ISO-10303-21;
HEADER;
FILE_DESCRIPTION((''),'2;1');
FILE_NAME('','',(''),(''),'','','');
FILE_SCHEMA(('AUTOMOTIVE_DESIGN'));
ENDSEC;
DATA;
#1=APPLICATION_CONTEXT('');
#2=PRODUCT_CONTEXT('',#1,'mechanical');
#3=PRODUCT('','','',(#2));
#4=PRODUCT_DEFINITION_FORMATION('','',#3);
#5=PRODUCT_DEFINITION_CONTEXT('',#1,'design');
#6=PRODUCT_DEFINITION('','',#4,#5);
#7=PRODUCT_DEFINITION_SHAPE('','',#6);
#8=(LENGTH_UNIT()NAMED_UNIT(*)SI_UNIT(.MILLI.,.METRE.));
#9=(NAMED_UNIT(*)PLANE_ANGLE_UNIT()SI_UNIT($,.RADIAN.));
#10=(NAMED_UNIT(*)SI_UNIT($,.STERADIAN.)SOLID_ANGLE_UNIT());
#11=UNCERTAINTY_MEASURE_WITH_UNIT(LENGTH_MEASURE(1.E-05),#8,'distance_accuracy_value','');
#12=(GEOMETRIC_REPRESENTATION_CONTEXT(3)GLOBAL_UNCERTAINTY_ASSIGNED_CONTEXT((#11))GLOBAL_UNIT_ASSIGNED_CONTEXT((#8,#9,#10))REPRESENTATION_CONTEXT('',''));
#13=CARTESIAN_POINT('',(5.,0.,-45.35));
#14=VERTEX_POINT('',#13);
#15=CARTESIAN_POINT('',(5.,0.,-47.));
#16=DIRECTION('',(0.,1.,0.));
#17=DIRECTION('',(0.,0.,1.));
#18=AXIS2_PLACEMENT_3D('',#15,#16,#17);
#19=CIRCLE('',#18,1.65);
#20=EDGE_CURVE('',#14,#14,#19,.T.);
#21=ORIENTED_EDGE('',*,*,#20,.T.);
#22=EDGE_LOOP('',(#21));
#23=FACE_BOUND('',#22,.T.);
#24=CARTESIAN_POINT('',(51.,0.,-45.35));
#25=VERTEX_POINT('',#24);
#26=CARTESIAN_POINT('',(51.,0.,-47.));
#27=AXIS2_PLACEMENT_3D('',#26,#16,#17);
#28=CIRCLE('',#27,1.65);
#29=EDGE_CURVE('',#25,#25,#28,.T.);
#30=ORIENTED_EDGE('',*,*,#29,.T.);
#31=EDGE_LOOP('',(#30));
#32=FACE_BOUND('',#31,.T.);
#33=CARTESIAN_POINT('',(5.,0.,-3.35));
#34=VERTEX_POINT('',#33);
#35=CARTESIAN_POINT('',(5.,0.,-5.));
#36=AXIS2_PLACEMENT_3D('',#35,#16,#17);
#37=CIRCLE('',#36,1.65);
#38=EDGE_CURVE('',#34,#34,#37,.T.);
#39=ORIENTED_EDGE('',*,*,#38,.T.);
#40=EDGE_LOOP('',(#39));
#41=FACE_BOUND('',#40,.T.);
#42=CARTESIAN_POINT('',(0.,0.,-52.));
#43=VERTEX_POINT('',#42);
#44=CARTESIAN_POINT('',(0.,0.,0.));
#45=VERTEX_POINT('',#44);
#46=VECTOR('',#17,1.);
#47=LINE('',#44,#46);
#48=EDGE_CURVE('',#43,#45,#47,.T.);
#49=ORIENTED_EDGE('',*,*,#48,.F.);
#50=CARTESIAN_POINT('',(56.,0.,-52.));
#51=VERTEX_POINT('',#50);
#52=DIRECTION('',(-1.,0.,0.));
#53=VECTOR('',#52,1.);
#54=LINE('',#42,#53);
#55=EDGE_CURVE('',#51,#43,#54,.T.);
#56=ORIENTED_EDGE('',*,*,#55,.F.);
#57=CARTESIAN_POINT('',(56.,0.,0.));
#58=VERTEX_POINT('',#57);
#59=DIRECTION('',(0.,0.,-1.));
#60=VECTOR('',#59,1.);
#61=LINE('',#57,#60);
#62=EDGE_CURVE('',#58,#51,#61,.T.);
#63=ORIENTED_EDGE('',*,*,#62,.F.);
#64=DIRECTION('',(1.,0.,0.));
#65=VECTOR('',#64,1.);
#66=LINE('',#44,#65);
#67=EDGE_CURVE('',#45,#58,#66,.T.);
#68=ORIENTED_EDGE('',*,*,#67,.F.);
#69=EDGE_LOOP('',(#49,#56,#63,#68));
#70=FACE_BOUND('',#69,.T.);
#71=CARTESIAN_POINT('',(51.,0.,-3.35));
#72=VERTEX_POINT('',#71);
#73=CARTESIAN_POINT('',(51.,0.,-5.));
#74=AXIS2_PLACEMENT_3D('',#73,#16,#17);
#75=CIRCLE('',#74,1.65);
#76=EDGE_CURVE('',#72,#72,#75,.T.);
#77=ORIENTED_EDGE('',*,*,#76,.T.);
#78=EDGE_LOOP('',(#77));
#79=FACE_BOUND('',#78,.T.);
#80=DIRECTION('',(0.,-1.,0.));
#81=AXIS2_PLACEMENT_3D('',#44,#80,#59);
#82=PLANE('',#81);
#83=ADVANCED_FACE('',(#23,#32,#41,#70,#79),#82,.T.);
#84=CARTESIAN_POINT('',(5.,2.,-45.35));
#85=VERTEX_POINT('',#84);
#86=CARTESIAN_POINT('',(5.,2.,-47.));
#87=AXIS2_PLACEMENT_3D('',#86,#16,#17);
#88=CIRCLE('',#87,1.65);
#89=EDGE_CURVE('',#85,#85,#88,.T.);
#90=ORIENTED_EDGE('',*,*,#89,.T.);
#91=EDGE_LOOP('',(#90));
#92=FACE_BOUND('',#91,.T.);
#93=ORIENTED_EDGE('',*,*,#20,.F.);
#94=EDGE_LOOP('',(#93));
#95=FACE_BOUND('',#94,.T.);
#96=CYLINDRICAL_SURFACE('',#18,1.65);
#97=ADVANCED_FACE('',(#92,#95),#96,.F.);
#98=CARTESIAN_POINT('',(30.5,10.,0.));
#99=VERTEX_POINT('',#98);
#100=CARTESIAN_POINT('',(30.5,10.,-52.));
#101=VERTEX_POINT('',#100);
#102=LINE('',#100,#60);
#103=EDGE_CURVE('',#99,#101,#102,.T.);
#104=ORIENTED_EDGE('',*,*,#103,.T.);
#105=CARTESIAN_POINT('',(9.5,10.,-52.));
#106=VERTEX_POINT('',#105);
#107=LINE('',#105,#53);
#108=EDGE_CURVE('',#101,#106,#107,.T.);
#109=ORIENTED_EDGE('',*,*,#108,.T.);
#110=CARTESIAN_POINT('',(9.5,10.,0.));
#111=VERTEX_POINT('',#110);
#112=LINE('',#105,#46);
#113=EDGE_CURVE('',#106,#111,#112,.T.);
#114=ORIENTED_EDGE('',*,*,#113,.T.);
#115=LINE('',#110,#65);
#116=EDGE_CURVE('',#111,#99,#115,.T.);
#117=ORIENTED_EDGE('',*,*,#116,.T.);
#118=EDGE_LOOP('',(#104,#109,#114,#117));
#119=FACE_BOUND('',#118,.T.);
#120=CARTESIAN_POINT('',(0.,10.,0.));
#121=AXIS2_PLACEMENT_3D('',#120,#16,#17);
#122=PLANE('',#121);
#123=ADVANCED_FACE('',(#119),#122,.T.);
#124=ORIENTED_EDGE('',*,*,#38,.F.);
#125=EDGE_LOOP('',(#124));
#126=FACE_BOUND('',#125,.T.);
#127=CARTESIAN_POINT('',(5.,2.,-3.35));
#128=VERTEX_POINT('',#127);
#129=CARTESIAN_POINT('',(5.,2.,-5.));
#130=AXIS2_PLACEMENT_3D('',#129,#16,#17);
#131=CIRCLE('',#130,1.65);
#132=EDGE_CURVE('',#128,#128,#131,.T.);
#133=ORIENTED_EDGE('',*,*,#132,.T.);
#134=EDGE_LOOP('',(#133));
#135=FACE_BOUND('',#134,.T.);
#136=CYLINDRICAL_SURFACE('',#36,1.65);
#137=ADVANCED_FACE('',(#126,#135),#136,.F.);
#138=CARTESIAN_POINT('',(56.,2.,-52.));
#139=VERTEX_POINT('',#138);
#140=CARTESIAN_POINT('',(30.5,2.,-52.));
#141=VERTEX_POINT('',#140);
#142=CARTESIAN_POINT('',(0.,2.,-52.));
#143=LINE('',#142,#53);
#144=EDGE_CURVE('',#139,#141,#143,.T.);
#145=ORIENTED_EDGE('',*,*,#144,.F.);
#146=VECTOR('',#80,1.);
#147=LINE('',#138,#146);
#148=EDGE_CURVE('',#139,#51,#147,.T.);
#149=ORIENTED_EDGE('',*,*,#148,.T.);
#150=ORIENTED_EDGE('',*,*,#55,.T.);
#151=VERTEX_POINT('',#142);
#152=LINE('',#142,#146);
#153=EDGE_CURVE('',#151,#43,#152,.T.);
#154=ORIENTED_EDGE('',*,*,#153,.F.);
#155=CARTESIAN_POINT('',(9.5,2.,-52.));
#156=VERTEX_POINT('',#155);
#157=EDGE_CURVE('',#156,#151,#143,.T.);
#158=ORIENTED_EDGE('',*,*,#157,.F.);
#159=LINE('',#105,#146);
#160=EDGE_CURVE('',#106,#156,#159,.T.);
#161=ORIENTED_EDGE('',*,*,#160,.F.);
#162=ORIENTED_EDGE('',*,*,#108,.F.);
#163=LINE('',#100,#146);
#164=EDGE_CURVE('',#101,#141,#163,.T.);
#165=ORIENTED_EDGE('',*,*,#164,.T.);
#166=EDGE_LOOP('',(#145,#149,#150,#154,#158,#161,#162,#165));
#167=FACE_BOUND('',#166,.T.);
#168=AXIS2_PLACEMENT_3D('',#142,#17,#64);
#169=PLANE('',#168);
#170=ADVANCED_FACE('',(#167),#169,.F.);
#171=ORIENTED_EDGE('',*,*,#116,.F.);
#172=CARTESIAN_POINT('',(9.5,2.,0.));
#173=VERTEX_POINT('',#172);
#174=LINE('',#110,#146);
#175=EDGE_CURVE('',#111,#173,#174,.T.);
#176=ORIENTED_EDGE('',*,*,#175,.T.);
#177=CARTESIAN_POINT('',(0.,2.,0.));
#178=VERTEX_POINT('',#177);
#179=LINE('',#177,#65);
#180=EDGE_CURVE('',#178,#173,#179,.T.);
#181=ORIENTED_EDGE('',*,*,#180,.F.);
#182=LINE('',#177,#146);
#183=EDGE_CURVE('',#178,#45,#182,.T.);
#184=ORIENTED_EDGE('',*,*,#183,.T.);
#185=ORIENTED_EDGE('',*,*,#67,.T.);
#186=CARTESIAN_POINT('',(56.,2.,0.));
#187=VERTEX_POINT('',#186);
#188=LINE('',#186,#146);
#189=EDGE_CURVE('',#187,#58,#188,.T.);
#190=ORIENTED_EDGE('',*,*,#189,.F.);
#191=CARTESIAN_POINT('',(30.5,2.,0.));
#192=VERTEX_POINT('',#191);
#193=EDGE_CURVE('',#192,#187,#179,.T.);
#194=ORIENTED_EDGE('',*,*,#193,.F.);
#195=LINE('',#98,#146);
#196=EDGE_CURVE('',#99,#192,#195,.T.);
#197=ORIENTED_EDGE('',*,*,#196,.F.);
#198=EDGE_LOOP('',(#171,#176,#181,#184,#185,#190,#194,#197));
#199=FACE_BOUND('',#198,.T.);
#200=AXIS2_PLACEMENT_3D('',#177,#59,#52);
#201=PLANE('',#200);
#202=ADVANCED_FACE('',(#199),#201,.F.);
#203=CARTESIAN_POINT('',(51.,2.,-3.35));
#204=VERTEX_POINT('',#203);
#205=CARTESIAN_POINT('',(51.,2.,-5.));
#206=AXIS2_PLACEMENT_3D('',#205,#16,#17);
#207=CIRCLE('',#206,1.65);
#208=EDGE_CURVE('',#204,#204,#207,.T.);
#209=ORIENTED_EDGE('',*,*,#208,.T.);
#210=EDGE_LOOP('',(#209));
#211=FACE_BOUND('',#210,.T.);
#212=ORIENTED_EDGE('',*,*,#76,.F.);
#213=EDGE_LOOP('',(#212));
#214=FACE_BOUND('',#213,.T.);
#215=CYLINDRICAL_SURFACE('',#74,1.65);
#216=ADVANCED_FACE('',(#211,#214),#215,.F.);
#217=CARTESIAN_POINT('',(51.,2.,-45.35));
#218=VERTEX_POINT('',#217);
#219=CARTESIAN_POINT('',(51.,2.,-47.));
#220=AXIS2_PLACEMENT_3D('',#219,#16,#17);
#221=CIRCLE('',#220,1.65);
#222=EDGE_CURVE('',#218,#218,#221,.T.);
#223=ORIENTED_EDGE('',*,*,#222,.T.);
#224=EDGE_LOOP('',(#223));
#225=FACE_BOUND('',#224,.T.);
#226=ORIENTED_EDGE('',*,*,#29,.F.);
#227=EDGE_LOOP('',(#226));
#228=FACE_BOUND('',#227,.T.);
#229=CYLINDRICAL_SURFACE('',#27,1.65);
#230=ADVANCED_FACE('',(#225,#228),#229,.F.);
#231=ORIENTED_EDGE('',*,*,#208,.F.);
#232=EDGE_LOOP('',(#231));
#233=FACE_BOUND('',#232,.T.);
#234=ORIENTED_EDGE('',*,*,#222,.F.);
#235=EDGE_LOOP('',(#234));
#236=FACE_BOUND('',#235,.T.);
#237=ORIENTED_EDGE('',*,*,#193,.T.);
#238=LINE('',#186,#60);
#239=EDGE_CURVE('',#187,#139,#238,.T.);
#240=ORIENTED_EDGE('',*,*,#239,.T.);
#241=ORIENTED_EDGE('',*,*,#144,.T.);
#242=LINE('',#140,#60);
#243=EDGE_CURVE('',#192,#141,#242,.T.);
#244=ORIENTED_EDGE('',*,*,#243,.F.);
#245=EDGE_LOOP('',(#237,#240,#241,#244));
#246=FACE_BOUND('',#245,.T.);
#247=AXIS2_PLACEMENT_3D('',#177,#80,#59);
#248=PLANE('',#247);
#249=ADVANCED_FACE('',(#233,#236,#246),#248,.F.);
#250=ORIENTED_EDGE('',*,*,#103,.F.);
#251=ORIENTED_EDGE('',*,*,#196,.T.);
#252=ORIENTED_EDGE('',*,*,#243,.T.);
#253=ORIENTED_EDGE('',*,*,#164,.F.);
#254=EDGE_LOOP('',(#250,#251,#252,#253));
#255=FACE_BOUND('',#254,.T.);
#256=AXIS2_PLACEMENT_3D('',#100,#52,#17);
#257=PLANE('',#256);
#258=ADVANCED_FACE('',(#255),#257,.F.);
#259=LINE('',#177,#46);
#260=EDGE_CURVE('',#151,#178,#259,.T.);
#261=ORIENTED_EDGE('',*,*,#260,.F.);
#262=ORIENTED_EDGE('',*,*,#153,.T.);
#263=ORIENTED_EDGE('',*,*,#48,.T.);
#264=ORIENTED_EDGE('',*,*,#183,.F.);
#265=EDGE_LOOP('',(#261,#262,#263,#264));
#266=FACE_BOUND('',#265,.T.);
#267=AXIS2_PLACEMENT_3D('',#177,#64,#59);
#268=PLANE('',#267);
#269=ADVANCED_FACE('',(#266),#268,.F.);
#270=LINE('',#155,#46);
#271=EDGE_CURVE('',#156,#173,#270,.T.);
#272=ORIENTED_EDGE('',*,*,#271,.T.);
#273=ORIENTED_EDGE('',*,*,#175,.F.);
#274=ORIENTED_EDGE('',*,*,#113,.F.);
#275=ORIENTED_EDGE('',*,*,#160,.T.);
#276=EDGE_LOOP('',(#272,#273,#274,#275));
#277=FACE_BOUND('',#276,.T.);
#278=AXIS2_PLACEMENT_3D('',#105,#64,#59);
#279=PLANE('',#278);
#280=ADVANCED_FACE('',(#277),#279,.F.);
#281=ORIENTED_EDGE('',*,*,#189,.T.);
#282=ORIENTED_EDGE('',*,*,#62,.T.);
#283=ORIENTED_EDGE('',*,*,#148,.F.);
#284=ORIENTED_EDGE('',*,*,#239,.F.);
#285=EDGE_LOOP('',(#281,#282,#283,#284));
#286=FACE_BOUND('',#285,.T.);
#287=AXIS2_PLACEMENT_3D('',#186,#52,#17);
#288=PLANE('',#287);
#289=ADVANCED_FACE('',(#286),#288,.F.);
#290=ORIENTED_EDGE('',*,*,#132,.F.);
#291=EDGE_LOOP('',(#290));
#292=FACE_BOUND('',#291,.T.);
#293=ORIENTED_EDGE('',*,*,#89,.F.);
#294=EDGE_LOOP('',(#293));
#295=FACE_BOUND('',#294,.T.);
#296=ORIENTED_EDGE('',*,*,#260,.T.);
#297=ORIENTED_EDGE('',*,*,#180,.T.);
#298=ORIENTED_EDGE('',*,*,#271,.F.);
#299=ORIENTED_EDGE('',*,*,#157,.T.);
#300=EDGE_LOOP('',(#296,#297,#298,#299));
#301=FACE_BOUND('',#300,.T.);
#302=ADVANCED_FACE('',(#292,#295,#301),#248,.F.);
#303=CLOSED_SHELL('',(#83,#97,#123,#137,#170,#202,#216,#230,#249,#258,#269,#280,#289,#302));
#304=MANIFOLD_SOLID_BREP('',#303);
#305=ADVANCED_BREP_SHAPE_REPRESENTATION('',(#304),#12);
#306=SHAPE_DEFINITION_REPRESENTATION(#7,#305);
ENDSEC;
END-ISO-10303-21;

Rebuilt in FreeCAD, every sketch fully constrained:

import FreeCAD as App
import Part
import Sketcher
Q = App.Units.Quantity

doc = App.newDocument("Part")
body = doc.addObject("PartDesign::Body", "Body")

sketch1 = doc.addObject("Sketcher::SketchObject", "Sketch")
body.addObject(sketch1)
sketch1.AttachmentSupport = (doc.XZ_Plane, [""])
sketch1.MapMode = "FlatFace"
sketch1.addGeometry([
    Part.LineSegment(App.Vector(0, -52, 0), App.Vector(0, 0, 0)),
    Part.LineSegment(App.Vector(0, 0, 0), App.Vector(56, 0, 0)),
    Part.LineSegment(App.Vector(56, 0, 0), App.Vector(56, -52, 0)),
    Part.LineSegment(App.Vector(56, -52, 0), App.Vector(0, -52, 0)),
], False)
sketch1.addConstraint([
    Sketcher.Constraint("Coincident", 0, 2, 1, 1),
    Sketcher.Constraint("Coincident", 1, 2, 2, 1),
    Sketcher.Constraint("Coincident", 2, 2, 3, 1),
    Sketcher.Constraint("Coincident", 3, 2, 0, 1),
    Sketcher.Constraint("Vertical", 0),
    Sketcher.Constraint("Horizontal", 1),
    Sketcher.Constraint("Vertical", 2),
    Sketcher.Constraint("Horizontal", 3),
    Sketcher.Constraint("Coincident", 0, 2, -1, 1),
    Sketcher.Constraint("DistanceX", 1, 1, 1, 2, Q("56 mm")),
    Sketcher.Constraint("DistanceY", 0, 1, 0, 2, Q("52 mm")),
])
pad1 = doc.addObject("PartDesign::Pad", "Pad")
body.addObject(pad1)
pad1.Profile = sketch1
pad1.Length = 2
pad1.Reversed = True

sketch2 = doc.addObject("Sketcher::SketchObject", "Sketch001")
body.addObject(sketch2)
sketch2.AttachmentSupport = (doc.XZ_Plane, [""])
sketch2.MapMode = "FlatFace"
sketch2.AttachmentOffset = App.Placement(App.Vector(0, 0, -2), App.Rotation())
sketch2.addGeometry([
    Part.Circle(App.Vector(5, -47, 0), App.Vector(0, 0, 1), 1.65),
    Part.Circle(App.Vector(51, -47, 0), App.Vector(0, 0, 1), 1.65),
    Part.Circle(App.Vector(5, -5, 0), App.Vector(0, 0, 1), 1.65),
    Part.Circle(App.Vector(51, -5, 0), App.Vector(0, 0, 1), 1.65),
], False)
sketch2.addConstraint([
    Sketcher.Constraint("Equal", 0, 1),
    Sketcher.Constraint("Equal", 1, 2),
    Sketcher.Constraint("Equal", 2, 3),
    Sketcher.Constraint("Horizontal", 0, 3, 1, 3),
    Sketcher.Constraint("Horizontal", 2, 3, 3, 3),
    Sketcher.Constraint("Vertical", 0, 3, 2, 3),
    Sketcher.Constraint("Vertical", 1, 3, 3, 3),
    Sketcher.Constraint("Diameter", 0, Q("3.3 mm")),
    Sketcher.Constraint("DistanceX", -1, 1, 0, 3, Q("5 mm")),
    Sketcher.Constraint("DistanceY", 0, 3, -1, 1, Q("47 mm")),
    Sketcher.Constraint("DistanceX", -1, 1, 1, 3, Q("51 mm")),
    Sketcher.Constraint("DistanceY", 2, 3, -1, 1, Q("5 mm")),
])
pocket1 = doc.addObject("PartDesign::Pocket", "Pocket")
body.addObject(pocket1)
pocket1.Profile = sketch2
pocket1.Type = "ThroughAll"
pocket1.Reversed = True

sketch3 = doc.addObject("Sketcher::SketchObject", "Sketch002")
body.addObject(sketch3)
sketch3.AttachmentSupport = (doc.XZ_Plane, [""])
sketch3.MapMode = "FlatFace"
sketch3.AttachmentOffset = App.Placement(App.Vector(0, 0, -2), App.Rotation())
sketch3.addGeometry([
    Part.LineSegment(App.Vector(9.5, -52, 0), App.Vector(9.5, 0, 0)),
    Part.LineSegment(App.Vector(9.5, 0, 0), App.Vector(30.5, 0, 0)),
    Part.LineSegment(App.Vector(30.5, 0, 0), App.Vector(30.5, -52, 0)),
    Part.LineSegment(App.Vector(30.5, -52, 0), App.Vector(9.5, -52, 0)),
], False)
sketch3.addConstraint([
    Sketcher.Constraint("Coincident", 0, 2, 1, 1),
    Sketcher.Constraint("Coincident", 1, 2, 2, 1),
    Sketcher.Constraint("Coincident", 2, 2, 3, 1),
    Sketcher.Constraint("Coincident", 3, 2, 0, 1),
    Sketcher.Constraint("Vertical", 0),
    Sketcher.Constraint("Horizontal", 1),
    Sketcher.Constraint("Vertical", 2),
    Sketcher.Constraint("Horizontal", 3),
    Sketcher.Constraint("PointOnObject", 0, 2, -1),
    Sketcher.Constraint("DistanceX", 1, 1, 1, 2, Q("21 mm")),
    Sketcher.Constraint("DistanceY", 0, 1, 0, 2, Q("52 mm")),
    Sketcher.Constraint("DistanceX", -1, 1, 0, 2, Q("9.5 mm")),
])
pad2 = doc.addObject("PartDesign::Pad", "Pad001")
body.addObject(pad2)
pad2.Profile = sketch3
pad2.Length = 8
pad2.Reversed = True

doc.recompute()
